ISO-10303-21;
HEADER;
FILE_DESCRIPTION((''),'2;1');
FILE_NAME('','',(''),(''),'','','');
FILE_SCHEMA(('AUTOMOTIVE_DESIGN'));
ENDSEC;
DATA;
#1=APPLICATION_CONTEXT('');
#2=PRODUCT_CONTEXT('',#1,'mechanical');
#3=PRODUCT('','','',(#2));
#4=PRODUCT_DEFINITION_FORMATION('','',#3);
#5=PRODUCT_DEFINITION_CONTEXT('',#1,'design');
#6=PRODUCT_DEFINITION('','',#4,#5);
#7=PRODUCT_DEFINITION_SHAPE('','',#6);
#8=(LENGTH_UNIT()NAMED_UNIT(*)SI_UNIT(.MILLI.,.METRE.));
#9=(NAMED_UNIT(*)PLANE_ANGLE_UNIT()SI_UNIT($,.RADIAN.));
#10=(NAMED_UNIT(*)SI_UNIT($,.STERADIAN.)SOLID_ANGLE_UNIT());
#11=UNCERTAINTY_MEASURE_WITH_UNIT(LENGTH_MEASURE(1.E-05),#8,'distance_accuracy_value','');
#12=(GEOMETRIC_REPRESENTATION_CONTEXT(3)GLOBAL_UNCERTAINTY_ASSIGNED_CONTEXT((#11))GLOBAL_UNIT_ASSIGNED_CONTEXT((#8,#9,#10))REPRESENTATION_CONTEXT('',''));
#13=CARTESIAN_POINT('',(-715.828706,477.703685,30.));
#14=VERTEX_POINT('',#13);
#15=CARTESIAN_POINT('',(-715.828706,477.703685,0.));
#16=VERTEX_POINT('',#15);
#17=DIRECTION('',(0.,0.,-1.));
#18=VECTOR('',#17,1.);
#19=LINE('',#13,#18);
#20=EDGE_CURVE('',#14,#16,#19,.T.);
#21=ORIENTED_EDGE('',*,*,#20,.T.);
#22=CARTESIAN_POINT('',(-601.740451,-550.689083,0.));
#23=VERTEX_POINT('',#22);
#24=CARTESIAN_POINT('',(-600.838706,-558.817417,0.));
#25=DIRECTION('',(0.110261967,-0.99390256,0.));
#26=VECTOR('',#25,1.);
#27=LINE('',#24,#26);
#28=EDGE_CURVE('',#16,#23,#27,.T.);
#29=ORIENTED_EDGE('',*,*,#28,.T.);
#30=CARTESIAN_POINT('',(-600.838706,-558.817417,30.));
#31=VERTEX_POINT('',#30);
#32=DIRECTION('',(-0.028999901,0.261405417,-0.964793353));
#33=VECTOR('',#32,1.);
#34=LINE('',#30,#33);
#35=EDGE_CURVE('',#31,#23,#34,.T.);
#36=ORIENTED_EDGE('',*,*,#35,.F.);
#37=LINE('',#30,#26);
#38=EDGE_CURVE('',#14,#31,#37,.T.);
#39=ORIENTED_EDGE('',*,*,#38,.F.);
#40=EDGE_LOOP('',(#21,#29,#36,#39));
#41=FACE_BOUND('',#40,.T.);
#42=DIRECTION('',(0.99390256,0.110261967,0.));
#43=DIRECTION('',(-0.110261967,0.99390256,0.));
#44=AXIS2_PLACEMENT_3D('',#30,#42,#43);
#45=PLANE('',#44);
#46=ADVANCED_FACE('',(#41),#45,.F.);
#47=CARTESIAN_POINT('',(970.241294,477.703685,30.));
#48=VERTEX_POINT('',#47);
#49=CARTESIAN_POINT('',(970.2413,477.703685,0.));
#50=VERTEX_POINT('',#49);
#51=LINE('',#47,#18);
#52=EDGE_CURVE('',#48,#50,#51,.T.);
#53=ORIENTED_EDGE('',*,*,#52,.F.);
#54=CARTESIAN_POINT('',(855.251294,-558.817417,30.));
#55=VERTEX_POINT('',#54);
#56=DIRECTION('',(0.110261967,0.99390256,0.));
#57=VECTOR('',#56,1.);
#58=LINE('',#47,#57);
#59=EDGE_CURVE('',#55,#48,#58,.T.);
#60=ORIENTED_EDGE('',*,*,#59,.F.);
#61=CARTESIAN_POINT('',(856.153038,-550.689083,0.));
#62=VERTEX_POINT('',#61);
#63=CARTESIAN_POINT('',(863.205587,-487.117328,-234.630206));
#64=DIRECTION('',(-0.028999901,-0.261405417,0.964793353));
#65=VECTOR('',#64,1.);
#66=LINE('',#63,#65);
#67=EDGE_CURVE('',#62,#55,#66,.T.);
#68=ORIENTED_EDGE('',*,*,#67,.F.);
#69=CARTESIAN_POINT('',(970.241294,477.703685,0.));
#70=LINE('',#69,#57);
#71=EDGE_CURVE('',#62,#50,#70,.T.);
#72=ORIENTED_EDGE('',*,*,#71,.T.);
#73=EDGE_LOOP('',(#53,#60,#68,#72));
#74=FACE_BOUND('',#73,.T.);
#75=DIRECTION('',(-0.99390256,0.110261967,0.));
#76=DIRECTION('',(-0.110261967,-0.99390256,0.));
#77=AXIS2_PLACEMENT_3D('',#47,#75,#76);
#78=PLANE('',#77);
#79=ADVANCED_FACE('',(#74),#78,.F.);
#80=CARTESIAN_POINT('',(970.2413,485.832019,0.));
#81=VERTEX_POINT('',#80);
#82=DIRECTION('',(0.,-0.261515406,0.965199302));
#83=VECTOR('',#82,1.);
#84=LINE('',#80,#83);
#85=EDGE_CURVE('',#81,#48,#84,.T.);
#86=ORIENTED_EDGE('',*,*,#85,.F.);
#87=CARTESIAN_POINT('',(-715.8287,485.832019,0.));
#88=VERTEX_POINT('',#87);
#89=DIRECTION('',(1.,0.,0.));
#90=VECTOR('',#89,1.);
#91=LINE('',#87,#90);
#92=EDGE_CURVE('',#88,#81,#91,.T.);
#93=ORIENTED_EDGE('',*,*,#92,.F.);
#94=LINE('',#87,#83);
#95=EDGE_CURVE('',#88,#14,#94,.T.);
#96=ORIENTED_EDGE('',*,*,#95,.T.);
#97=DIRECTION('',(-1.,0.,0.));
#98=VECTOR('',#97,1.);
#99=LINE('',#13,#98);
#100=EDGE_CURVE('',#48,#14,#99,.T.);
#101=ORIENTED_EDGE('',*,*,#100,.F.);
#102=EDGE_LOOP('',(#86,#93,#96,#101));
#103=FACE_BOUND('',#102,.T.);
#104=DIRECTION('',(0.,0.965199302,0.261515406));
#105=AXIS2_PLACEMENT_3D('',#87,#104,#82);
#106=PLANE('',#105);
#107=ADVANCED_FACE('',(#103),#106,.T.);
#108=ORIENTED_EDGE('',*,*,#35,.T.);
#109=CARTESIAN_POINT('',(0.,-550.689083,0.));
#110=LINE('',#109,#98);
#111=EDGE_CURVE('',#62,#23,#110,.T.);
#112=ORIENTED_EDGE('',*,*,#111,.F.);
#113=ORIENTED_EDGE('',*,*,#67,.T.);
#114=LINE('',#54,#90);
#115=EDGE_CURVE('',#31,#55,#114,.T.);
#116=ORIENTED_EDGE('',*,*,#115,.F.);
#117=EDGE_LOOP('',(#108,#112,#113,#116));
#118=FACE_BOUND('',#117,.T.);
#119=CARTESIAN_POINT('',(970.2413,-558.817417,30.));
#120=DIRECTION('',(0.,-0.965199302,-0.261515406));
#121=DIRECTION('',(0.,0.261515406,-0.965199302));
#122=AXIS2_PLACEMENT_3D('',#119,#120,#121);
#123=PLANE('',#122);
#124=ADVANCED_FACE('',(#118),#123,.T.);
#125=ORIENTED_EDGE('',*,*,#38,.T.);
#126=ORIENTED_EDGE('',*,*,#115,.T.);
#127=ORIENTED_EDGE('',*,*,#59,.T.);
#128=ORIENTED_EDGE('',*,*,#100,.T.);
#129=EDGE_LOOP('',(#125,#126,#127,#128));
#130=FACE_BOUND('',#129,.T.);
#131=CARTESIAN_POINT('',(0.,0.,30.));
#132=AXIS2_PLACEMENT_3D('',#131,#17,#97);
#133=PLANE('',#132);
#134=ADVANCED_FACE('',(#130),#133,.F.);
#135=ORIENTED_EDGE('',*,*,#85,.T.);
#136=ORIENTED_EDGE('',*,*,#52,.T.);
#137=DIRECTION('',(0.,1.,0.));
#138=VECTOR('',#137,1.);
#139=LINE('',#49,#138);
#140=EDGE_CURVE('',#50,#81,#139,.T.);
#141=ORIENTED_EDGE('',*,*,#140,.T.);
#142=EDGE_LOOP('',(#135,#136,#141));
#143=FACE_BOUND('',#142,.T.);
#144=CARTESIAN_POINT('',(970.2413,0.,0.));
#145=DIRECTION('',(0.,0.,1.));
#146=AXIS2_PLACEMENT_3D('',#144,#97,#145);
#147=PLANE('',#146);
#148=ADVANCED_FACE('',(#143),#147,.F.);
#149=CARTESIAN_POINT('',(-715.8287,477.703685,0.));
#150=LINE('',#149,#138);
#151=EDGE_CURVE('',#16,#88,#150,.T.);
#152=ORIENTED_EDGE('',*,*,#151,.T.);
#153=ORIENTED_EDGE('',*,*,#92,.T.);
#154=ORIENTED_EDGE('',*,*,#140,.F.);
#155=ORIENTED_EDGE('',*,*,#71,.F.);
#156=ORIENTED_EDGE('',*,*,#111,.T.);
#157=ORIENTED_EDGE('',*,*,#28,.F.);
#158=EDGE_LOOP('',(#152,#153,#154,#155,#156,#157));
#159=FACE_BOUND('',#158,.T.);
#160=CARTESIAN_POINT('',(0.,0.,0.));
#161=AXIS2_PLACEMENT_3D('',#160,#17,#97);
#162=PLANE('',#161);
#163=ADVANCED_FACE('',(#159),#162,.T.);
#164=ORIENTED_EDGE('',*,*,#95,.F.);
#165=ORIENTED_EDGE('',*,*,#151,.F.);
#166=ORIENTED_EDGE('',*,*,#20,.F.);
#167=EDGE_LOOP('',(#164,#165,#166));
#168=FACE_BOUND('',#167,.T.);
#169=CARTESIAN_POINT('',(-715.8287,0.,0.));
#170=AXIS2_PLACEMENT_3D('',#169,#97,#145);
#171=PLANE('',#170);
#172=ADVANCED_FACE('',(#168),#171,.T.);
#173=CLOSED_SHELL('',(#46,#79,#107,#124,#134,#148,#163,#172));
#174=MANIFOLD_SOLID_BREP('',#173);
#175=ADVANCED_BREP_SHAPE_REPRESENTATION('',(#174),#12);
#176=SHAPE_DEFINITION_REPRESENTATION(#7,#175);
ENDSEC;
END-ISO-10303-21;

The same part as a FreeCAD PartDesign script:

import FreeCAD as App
import Part
import Sketcher
from FreeCAD import Vector
Q = App.Units.Quantity

doc = App.newDocument("Part")
body = doc.addObject("PartDesign::Body", "Body")

sketch1 = body.newObject("Sketcher::SketchObject", "Sketch")
sketch1.AttachmentSupport = (doc.getObject("XY_Plane"), [""])
sketch1.MapMode = "FlatFace"
sketch1.addGeometry([
    Part.LineSegment(Vector(970.241294, 477.703685, 0), Vector(-715.828706, 477.703685, 0)),
    Part.LineSegment(Vector(-715.828706, 477.703685, 0), Vector(-600.838706, -558.817417, 0)),
    Part.LineSegment(Vector(-600.838706, -558.817417, 0), Vector(855.251294, -558.817417, 0)),
    Part.LineSegment(Vector(855.251294, -558.817417, 0), Vector(970.241294, 477.703685, 0)),
], False)
sketch1.addConstraint([
    Sketcher.Constraint("Coincident", 0, 2, 1, 1),
    Sketcher.Constraint("Coincident", 1, 2, 2, 1),
    Sketcher.Constraint("Coincident", 2, 2, 3, 1),
    Sketcher.Constraint("Coincident", 3, 2, 0, 1),
    Sketcher.Constraint("Horizontal", 0),
    Sketcher.Constraint("Horizontal", 2),
    Sketcher.Constraint("Equal", 1, 3),
    Sketcher.Constraint("DistanceX", 0, 2, 0, 1, Q("1686.07 mm")),
    Sketcher.Constraint("DistanceX", 2, 1, 2, 2, Q("1456.09 mm")),
    Sketcher.Constraint("Distance", 1, Q("1042.88 mm")),
    Sketcher.Constraint("DistanceX", 0, 2, -1, 1, Q("715.828706 mm")),
    Sketcher.Constraint("DistanceY", -1, 1, 0, 2, Q("477.703685 mm")),
])
pad1 = body.newObject("PartDesign::Pad", "Pad")
pad1.Profile = sketch1
pad1.Length = 30

sketch2 = body.newObject("Sketcher::SketchObject", "Sketch001")
sketch2.AttachmentSupport = (doc.getObject("YZ_Plane"), [""])
sketch2.MapMode = "FlatFace"
sketch2.addGeometry([
    Part.LineSegment(Vector(477.703685, 30, 0), Vector(477.703685, 0, 0)),
    Part.LineSegment(Vector(477.703685, 0, 0), Vector(485.832019, 0, 0)),
    Part.LineSegment(Vector(485.832019, 0, 0), Vector(477.703685, 30, 0)),
], False)
sketch2.addConstraint([
    Sketcher.Constraint("Coincident", 0, 2, 1, 1),
    Sketcher.Constraint("Coincident", 1, 2, 2, 1),
    Sketcher.Constraint("Coincident", 2, 2, 0, 1),
    Sketcher.Constraint("Vertical", 0),
    Sketcher.Constraint("Horizontal", 1),
    Sketcher.Constraint("PointOnObject", 0, 2, -1),
    Sketcher.Constraint("DistanceY", 0, 2, 0, 1, Q("30 mm")),
    Sketcher.Constraint("Angle", 2, Q("105.16 deg")),
    Sketcher.Constraint("DistanceX", -1, 1, 1, 2, Q("485.832019 mm")),
])
pad2 = body.newObject("PartDesign::Pad", "Pad001")
pad2.Profile = sketch2
pad2.Type = "TwoLengths"
pad2.Length = 970.2413
pad2.Length2 = 715.8287

sketch3 = body.newObject("Sketcher::SketchObject", "Sketch002")
sketch3.AttachmentSupport = (doc.getObject("YZ_Plane"), [""])
sketch3.MapMode = "FlatFace"
sketch3.addGeometry([
    Part.LineSegment(Vector(-550.689083, 0, 0), Vector(-558.817417, 30, 0)),
    Part.LineSegment(Vector(-558.817417, 30, 0), Vector(-558.817417, 0, 0)),
    Part.LineSegment(Vector(-558.817417, 0, 0), Vector(-550.689083, 0, 0)),
], False)
sketch3.addConstraint([
    Sketcher.Constraint("Coincident", 0, 2, 1, 1),
    Sketcher.Constraint("Coincident", 1, 2, 2, 1),
    Sketcher.Constraint("Coincident", 2, 2, 0, 1),
    Sketcher.Constraint("Vertical", 1),
    Sketcher.Constraint("Horizontal", 2),
    Sketcher.Constraint("PointOnObject", 1, 2, -1),
    Sketcher.Constraint("DistanceY", 1, 2, 1, 1, Q("30 mm")),
    Sketcher.Constraint("Angle", 0, Q("105.16 deg")),
    Sketcher.Constraint("DistanceX", 0, 2, -1, 1, Q("558.817417 mm")),
])
pocket1 = body.newObject("PartDesign::Pocket", "Pocket")
pocket1.Profile = sketch3
pocket1.Type = "ThroughAll"
pocket1.Midplane = True

doc.recompute()
